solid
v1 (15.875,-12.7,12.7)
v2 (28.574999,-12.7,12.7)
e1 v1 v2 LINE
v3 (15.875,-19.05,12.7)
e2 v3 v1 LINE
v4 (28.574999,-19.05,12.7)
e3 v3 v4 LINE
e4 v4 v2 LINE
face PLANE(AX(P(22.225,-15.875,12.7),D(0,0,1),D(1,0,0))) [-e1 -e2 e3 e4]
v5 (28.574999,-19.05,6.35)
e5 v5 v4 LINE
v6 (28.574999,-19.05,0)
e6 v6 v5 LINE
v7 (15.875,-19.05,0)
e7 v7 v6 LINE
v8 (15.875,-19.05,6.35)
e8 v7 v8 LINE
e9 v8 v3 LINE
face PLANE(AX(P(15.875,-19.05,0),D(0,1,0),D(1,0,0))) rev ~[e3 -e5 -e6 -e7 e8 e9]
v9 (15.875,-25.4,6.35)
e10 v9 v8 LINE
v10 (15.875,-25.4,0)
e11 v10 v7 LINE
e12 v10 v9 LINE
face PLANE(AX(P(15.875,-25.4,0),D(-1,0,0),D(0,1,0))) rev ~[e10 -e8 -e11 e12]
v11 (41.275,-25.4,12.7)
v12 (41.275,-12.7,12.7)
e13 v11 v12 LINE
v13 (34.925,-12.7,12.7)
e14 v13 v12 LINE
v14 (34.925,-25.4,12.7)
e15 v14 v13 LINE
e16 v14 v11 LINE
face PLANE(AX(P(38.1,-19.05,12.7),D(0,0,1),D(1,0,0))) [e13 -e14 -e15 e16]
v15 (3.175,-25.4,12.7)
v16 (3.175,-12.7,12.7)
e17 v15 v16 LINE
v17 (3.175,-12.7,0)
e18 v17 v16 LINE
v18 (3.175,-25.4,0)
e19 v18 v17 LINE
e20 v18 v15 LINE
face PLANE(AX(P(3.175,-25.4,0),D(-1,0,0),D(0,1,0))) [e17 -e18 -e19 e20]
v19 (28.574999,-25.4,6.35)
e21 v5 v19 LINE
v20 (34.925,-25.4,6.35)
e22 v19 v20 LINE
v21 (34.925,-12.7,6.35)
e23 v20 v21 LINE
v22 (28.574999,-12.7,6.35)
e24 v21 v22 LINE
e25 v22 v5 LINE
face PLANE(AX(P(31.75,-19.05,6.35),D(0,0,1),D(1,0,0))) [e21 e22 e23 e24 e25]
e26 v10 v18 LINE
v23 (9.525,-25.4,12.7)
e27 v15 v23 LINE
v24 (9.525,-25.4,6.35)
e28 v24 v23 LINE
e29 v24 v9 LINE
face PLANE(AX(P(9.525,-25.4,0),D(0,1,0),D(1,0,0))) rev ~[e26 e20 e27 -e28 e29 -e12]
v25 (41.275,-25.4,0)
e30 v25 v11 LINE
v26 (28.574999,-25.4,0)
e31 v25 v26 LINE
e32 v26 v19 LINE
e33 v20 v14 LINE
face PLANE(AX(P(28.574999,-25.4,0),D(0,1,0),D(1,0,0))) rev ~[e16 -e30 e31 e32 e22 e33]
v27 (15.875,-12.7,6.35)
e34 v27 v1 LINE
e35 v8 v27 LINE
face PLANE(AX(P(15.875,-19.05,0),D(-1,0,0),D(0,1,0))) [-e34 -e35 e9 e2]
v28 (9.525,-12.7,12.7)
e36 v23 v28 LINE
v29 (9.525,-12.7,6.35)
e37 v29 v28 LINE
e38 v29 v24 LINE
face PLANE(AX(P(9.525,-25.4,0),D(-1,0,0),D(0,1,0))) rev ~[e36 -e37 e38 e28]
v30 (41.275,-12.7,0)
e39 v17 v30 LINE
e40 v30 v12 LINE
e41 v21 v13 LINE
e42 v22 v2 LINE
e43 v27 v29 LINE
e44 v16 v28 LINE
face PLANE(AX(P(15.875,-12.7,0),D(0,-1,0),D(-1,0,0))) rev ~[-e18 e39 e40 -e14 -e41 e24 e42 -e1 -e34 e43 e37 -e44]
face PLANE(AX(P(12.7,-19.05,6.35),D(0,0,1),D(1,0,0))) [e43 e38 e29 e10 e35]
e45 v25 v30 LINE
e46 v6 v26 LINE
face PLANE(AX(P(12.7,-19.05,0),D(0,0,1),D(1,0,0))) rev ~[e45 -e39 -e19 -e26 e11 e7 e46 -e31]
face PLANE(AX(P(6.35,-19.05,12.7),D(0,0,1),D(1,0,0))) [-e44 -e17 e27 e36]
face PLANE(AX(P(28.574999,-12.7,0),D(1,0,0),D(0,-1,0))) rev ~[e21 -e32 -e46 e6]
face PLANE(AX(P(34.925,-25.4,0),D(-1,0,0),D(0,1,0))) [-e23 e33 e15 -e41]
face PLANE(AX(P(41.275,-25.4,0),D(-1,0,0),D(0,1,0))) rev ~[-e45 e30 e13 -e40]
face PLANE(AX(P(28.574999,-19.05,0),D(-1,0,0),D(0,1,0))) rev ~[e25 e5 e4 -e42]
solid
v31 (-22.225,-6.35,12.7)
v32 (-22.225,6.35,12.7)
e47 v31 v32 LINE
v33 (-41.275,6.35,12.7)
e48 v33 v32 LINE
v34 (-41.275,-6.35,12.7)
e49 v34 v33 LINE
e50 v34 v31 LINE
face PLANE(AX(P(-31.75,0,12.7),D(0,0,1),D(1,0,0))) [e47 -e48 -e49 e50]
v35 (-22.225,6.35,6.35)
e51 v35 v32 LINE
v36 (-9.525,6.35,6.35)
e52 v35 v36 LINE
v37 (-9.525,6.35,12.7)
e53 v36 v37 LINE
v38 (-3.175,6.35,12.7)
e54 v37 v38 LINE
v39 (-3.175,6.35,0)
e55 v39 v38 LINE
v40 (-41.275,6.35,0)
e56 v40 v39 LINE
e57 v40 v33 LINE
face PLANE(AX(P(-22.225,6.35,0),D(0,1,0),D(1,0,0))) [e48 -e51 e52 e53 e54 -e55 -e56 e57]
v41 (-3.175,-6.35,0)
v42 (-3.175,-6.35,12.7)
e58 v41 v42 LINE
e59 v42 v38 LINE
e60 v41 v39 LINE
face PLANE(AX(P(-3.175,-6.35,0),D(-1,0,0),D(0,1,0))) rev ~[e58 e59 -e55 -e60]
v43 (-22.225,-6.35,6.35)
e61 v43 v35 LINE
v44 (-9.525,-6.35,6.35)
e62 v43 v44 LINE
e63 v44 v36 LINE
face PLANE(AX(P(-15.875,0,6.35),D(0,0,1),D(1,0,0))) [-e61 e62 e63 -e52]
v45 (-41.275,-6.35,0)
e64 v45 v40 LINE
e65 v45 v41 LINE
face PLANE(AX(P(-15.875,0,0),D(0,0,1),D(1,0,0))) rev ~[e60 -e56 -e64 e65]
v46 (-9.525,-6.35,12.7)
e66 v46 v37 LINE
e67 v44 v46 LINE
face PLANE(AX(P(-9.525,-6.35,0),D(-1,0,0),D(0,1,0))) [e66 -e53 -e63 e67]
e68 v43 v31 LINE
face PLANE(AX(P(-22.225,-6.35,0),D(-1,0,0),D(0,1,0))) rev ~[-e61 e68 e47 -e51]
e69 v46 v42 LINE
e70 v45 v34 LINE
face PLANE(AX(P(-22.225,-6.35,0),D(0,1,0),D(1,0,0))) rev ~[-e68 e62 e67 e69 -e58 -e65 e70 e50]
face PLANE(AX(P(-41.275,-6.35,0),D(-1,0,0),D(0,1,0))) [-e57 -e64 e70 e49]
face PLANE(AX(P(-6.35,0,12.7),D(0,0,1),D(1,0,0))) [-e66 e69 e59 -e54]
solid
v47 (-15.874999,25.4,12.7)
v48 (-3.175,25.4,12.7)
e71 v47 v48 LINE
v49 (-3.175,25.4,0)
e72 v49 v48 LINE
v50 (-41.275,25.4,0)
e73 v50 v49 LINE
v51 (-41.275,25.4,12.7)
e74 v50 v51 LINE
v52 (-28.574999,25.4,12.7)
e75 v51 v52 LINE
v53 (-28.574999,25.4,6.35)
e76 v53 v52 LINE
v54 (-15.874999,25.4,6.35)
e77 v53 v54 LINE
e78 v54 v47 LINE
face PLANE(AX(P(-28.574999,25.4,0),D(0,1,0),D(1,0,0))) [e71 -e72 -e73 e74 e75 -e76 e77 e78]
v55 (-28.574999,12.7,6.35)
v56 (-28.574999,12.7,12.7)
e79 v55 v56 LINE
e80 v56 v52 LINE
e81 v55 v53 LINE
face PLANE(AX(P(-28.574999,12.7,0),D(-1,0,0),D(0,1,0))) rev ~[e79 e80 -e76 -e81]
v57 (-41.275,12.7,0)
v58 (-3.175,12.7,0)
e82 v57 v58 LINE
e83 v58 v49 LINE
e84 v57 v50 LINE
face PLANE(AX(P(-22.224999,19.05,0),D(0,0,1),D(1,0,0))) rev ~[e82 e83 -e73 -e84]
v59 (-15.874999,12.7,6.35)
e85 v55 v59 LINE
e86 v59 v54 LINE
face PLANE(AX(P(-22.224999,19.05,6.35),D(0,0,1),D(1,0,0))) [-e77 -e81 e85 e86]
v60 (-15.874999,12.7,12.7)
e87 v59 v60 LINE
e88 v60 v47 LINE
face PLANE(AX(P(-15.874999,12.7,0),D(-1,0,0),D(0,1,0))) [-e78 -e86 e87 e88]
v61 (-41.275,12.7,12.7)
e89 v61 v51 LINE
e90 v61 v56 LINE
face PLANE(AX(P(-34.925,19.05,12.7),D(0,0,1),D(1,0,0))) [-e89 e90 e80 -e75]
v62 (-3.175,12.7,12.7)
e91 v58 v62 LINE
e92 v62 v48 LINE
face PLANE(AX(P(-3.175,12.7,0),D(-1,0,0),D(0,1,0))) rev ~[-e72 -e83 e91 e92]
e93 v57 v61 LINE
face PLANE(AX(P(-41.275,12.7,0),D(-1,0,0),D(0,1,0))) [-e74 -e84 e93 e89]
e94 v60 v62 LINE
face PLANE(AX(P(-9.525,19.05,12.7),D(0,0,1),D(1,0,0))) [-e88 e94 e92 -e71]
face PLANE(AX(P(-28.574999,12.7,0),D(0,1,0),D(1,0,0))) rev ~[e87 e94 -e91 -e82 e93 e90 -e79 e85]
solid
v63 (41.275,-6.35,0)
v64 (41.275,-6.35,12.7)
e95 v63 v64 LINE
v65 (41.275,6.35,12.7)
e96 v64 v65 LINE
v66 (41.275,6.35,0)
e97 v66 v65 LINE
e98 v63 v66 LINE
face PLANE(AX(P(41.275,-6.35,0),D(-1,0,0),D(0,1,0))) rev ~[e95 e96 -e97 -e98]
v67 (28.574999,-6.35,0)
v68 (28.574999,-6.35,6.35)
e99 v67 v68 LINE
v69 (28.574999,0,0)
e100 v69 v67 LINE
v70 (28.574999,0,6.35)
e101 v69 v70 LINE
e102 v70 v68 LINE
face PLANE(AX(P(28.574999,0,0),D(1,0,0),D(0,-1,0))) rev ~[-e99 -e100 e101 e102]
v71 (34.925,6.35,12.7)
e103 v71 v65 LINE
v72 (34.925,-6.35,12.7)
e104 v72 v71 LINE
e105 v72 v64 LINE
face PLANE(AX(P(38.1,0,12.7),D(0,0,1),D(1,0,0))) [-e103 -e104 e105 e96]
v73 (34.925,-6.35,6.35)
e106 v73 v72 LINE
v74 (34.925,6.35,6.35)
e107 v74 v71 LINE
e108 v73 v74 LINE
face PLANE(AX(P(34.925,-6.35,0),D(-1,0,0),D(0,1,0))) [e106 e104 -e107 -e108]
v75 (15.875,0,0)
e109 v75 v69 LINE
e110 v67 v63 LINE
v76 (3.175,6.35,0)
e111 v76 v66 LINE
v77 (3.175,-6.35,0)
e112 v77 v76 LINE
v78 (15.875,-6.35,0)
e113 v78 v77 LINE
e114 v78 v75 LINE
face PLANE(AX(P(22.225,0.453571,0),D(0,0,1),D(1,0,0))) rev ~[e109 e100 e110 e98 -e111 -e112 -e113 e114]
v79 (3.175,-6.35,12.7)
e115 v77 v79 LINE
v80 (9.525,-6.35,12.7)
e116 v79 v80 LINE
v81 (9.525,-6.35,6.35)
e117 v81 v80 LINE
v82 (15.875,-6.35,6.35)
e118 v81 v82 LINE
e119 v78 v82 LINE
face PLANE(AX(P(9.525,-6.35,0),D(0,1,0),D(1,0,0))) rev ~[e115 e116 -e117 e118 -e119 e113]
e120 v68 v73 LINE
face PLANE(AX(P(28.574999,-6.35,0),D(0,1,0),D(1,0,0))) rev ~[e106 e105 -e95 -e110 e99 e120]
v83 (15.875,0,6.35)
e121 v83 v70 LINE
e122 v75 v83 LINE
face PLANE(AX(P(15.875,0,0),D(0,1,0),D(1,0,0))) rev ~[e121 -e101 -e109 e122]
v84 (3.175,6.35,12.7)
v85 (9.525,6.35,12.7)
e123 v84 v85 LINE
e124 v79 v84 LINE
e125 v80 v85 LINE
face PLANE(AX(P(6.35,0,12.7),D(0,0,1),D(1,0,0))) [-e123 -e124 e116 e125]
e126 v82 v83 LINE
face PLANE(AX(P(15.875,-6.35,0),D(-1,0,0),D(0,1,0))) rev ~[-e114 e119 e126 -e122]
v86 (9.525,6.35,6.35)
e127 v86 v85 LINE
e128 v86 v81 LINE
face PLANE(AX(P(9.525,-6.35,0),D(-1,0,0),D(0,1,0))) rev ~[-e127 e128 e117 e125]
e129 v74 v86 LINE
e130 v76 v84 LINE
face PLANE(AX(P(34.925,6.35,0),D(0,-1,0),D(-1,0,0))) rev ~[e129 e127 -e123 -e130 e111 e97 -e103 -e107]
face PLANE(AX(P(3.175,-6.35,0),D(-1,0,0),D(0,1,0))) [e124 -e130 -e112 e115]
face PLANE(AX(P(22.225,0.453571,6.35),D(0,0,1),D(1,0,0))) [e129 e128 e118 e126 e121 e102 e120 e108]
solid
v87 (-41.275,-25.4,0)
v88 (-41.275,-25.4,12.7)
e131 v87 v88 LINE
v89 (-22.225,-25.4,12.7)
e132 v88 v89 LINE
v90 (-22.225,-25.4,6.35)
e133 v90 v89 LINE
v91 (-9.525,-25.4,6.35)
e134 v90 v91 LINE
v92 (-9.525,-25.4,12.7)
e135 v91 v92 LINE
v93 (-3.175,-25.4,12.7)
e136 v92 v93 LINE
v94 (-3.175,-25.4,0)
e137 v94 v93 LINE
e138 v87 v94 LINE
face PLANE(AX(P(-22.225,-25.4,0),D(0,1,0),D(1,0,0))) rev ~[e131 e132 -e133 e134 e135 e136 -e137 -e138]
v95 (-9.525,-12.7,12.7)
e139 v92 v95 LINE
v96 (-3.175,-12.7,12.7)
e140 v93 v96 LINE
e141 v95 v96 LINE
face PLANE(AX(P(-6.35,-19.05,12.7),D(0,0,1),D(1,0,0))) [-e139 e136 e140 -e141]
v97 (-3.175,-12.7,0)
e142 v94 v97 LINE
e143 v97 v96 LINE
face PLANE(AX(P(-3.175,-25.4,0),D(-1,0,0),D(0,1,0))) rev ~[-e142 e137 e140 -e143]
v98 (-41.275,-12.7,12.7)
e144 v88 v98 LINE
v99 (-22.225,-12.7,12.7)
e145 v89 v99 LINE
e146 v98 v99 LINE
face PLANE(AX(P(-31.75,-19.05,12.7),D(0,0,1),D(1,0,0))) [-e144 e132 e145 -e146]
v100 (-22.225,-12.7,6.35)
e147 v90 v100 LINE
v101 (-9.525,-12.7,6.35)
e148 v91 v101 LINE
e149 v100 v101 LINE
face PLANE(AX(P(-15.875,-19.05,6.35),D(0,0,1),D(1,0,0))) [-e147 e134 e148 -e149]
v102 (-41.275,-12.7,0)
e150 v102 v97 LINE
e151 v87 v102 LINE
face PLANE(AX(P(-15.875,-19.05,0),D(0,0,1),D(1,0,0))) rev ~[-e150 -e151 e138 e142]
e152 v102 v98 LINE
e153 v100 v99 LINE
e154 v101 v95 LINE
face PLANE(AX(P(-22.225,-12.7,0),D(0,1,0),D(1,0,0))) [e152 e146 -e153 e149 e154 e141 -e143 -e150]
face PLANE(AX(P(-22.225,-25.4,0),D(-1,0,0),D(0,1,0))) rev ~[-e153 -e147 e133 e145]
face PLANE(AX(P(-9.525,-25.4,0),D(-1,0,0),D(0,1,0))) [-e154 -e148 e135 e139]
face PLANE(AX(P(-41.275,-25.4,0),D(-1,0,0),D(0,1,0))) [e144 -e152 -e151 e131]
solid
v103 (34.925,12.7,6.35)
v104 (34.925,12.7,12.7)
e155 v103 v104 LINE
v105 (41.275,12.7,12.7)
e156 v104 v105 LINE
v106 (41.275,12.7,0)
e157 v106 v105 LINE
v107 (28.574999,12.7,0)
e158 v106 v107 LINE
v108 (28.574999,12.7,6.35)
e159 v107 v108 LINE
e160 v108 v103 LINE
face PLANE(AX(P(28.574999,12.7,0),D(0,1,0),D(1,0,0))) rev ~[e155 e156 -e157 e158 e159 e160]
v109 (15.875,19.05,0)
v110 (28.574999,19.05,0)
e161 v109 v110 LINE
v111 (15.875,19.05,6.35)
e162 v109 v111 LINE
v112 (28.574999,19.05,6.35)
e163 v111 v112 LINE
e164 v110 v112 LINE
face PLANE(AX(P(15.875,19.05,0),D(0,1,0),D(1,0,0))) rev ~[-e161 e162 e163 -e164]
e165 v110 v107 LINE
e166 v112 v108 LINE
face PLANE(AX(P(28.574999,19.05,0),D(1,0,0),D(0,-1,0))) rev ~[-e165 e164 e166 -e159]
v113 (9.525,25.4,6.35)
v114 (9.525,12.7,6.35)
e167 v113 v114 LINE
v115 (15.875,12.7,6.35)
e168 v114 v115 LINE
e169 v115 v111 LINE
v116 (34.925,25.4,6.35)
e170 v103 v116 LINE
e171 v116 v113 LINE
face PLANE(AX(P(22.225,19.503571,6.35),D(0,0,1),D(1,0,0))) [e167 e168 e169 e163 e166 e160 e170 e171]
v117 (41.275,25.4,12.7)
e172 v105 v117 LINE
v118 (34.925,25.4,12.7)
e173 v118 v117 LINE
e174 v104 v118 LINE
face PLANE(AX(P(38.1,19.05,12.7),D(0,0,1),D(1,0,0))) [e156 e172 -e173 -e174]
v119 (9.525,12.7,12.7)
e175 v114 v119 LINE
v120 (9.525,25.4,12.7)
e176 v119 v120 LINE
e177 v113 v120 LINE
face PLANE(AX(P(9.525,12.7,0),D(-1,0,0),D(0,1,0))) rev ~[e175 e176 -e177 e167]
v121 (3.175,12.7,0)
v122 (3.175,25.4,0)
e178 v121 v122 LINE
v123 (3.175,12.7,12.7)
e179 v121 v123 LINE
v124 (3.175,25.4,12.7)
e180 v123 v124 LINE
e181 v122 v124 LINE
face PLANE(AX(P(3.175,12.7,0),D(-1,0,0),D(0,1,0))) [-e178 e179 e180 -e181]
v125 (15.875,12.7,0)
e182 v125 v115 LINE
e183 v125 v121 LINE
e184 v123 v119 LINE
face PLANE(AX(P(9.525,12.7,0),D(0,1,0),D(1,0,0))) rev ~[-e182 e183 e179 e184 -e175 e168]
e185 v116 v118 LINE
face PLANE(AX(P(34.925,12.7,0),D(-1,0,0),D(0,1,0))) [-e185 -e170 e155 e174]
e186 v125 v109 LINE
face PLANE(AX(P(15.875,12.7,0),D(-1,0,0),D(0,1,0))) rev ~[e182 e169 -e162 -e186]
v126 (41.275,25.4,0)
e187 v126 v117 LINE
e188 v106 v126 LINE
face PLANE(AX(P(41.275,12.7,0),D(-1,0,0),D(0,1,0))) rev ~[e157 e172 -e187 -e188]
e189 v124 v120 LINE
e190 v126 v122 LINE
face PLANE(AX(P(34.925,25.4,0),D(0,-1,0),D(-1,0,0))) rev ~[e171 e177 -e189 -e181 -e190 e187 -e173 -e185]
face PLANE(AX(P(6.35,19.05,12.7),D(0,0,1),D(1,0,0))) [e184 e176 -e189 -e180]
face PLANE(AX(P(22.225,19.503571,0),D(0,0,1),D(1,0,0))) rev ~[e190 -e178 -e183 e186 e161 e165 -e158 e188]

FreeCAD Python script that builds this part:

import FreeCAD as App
import Part
import Sketcher
Q = App.Units.Quantity

doc = App.newDocument("Part")
body = doc.addObject("PartDesign::Body", "Body")

# Sketch on XY plane
sketch1 = body.newObject("Sketcher::SketchObject", "Sketch")
sketch1.AttachmentSupport = (doc.getObject("XY_Plane"), [""])
sketch1.MapMode = "FlatFace"
sketch1.addGeometry(Part.LineSegment(App.Vector(-41, 25, 0), App.Vector(-41, 13, 0)), False)
sketch1.addGeometry(Part.LineSegment(App.Vector(-41, 13, 0), App.Vector(-29, 13, 0)), False)
sketch1.addGeometry(Part.LineSegment(App.Vector(-29, 13, 0), App.Vector(-29, 25, 0)), False)
sketch1.addGeometry(Part.LineSegment(App.Vector(-29, 25, 0), App.Vector(-41, 25, 0)), False)
sketch1.addConstraint(Sketcher.Constraint("Coincident", 0, 2, 1, 1))
sketch1.addConstraint(Sketcher.Constraint("Coincident", 1, 2, 2, 1))
sketch1.addConstraint(Sketcher.Constraint("Coincident", 2, 2, 3, 1))
sketch1.addConstraint(Sketcher.Constraint("Coincident", 3, 2, 0, 1))
sketch1.addConstraint(Sketcher.Constraint("Vertical", 0))
sketch1.addConstraint(Sketcher.Constraint("Horizontal", 1))
sketch1.addConstraint(Sketcher.Constraint("Vertical", 2))
sketch1.addConstraint(Sketcher.Constraint("Horizontal", 3))
sketch1.addConstraint(Sketcher.Constraint("Equal", 3, 0))
sketch1.addConstraint(Sketcher.Constraint("DistanceX", 1, 1, 1, 2, Q("0.5 in")))
sketch1.addConstraint(Sketcher.Constraint("DistanceY", -1, 1, 2, 2, Q("1 in")))
sketch1.addConstraint(Sketcher.Constraint("DistanceX", 0, 2, -1, 1, Q("1.625 in")))
pad1 = body.newObject("PartDesign::Pad", "Pad")
pad1.Profile = sketch1
pad1.Length = Q("0.5 in")
body2 = doc.addObject("PartDesign::Body", "Body001")

# Sketch on XY plane
sketch2 = body2.newObject("Sketcher::SketchObject", "Sketch001")
sketch2.AttachmentSupport = (doc.getObject("XY_Plane001"), [""])
sketch2.MapMode = "FlatFace"
sketch2.addGeometry(Part.LineSegment(App.Vector(-16, 25, 0), App.Vector(-16, 13, 0)), False)
sketch2.addGeometry(Part.LineSegment(App.Vector(-16, 13, 0), App.Vector(-3, 13, 0)), False)
sketch2.addGeometry(Part.LineSegment(App.Vector(-3, 13, 0), App.Vector(-3, 25, 0)), False)
sketch2.addGeometry(Part.LineSegment(App.Vector(-3, 25, 0), App.Vector(-16, 25, 0)), False)
sketch2.addConstraint(Sketcher.Constraint("Coincident", 0, 2, 1, 1))
sketch2.addConstraint(Sketcher.Constraint("Coincident", 1, 2, 2, 1))
sketch2.addConstraint(Sketcher.Constraint("Coincident", 2, 2, 3, 1))
sketch2.addConstraint(Sketcher.Constraint("Coincident", 3, 2, 0, 1))
sketch2.addConstraint(Sketcher.Constraint("Vertical", 0))
sketch2.addConstraint(Sketcher.Constraint("Horizontal", 1))
sketch2.addConstraint(Sketcher.Constraint("Vertical", 2))
sketch2.addConstraint(Sketcher.Constraint("Horizontal", 3))
sketch2.addConstraint(Sketcher.Constraint("Equal", 3, 0))
sketch2.addConstraint(Sketcher.Constraint("DistanceX", 1, 1, 1, 2, Q("0.5 in")))
sketch2.addConstraint(Sketcher.Constraint("DistanceY", -1, 1, 2, 2, Q("1 in")))
sketch2.addConstraint(Sketcher.Constraint("DistanceX", 0, 2, -1, 1, Q("0.625 in")))
pad2 = body2.newObject("PartDesign::Pad", "Pad001")
pad2.Profile = sketch2
pad2.Length = Q("0.5 in")
body3 = doc.addObject("PartDesign::Body", "Body002")

# Sketch on XY plane
sketch3 = body3.newObject("Sketcher::SketchObject", "Sketch002")
sketch3.AttachmentSupport = (doc.getObject("XY_Plane002"), [""])
sketch3.MapMode = "FlatFace"
sketch3.addGeometry(Part.LineSegment(App.Vector(-41, 6, 0), App.Vector(-41, -6, 0)), False)
sketch3.addGeometry(Part.LineSegment(App.Vector(-41, -6, 0), App.Vector(-22, -6, 0)), False)
sketch3.addGeometry(Part.LineSegment(App.Vector(-22, -6, 0), App.Vector(-22, 6, 0)), False)
sketch3.addGeometry(Part.LineSegment(App.Vector(-22, 6, 0), App.Vector(-41, 6, 0)), False)
sketch3.addConstraint(Sketcher.Constraint("Coincident", 0, 2, 1, 1))
sketch3.addConstraint(Sketcher.Constraint("Coincident", 1, 2, 2, 1))
sketch3.addConstraint(Sketcher.Constraint("Coincident", 2, 2, 3, 1))
sketch3.addConstraint(Sketcher.Constraint("Coincident", 3, 2, 0, 1))
sketch3.addConstraint(Sketcher.Constraint("Vertical", 0))
sketch3.addConstraint(Sketcher.Constraint("Horizontal", 1))
sketch3.addConstraint(Sketcher.Constraint("Vertical", 2))
sketch3.addConstraint(Sketcher.Constraint("Horizontal", 3))
sketch3.addConstraint(Sketcher.Constraint("DistanceY", 0, 2, 0, 1, Q("0.5 in")))
sketch3.addConstraint(Sketcher.Constraint("DistanceX", 1, 1, 1, 2, Q("0.75 in")))
sketch3.addConstraint(Sketcher.Constraint("DistanceY", 0, 2, -1, 1, Q("0.25 in")))
sketch3.addConstraint(Sketcher.Constraint("DistanceX", 0, 2, -1, 1, Q("1.625 in")))
pad3 = body3.newObject("PartDesign::Pad", "Pad002")
pad3.Profile = sketch3
pad3.Length = Q("0.5 in")
body4 = doc.addObject("PartDesign::Body", "Body003")

# Sketch on XY plane
sketch4 = body4.newObject("Sketcher::SketchObject", "Sketch003")
sketch4.AttachmentSupport = (doc.getObject("XY_Plane003"), [""])
sketch4.MapMode = "FlatFace"
sketch4.addGeometry(Part.LineSegment(App.Vector(-10, 6, 0), App.Vector(-10, -6, 0)), False)
sketch4.addGeometry(Part.LineSegment(App.Vector(-10, -6, 0), App.Vector(-3, -6, 0)), False)
sketch4.addGeometry(Part.LineSegment(App.Vector(-3, -6, 0), App.Vector(-3, 6, 0)), False)
sketch4.addGeometry(Part.LineSegment(App.Vector(-3, 6, 0), App.Vector(-10, 6, 0)), False)
sketch4.addConstraint(Sketcher.Constraint("Coincident", 0, 2, 1, 1))
sketch4.addConstraint(Sketcher.Constraint("Coincident", 1, 2, 2, 1))
sketch4.addConstraint(Sketcher.Constraint("Coincident", 2, 2, 3, 1))
sketch4.addConstraint(Sketcher.Constraint("Coincident", 3, 2, 0, 1))
sketch4.addConstraint(Sketcher.Constraint("Vertical", 0))
sketch4.addConstraint(Sketcher.Constraint("Horizontal", 1))
sketch4.addConstraint(Sketcher.Constraint("Vertical", 2))
sketch4.addConstraint(Sketcher.Constraint("Horizontal", 3))
sketch4.addConstraint(Sketcher.Constraint("DistanceY", 0, 2, 0, 1, Q("0.5 in")))
sketch4.addConstraint(Sketcher.Constraint("DistanceX", 1, 1, 1, 2, Q("0.25 in")))
sketch4.addConstraint(Sketcher.Constraint("DistanceY", 0, 2, -1, 1, Q("0.25 in")))
sketch4.addConstraint(Sketcher.Constraint("DistanceX", 0, 2, -1, 1, Q("0.375 in")))
pad4 = body4.newObject("PartDesign::Pad", "Pad003")
pad4.Profile = sketch4
pad4.Length = Q("0.5 in")
body5 = doc.addObject("PartDesign::Body", "Body004")

# Sketch on XY plane
sketch5 = body5.newObject("Sketcher::SketchObject", "Sketch004")
sketch5.AttachmentSupport = (doc.getObject("XY_Plane004"), [""])
sketch5.MapMode = "FlatFace"
sketch5.addGeometry(Part.LineSegment(App.Vector(-10, -13, 0), App.Vector(-10, -25, 0)), False)
sketch5.addGeometry(Part.LineSegment(App.Vector(-10, -25, 0), App.Vector(-3, -25, 0)), False)
sketch5.addGeometry(Part.LineSegment(App.Vector(-3, -25, 0), App.Vector(-3, -13, 0)), False)
sketch5.addGeometry(Part.LineSegment(App.Vector(-3, -13, 0), App.Vector(-10, -13, 0)), False)
sketch5.addConstraint(Sketcher.Constraint("Coincident", 0, 2, 1, 1))
sketch5.addConstraint(Sketcher.Constraint("Coincident", 1, 2, 2, 1))
sketch5.addConstraint(Sketcher.Constraint("Coincident", 2, 2, 3, 1))
sketch5.addConstraint(Sketcher.Constraint("Coincident", 3, 2, 0, 1))
sketch5.addConstraint(Sketcher.Constraint("Vertical", 0))
sketch5.addConstraint(Sketcher.Constraint("Horizontal", 1))
sketch5.addConstraint(Sketcher.Constraint("Vertical", 2))
sketch5.addConstraint(Sketcher.Constraint("Horizontal", 3))
sketch5.addConstraint(Sketcher.Constraint("DistanceY", 0, 2, 0, 1, Q("0.5 in")))
sketch5.addConstraint(Sketcher.Constraint("DistanceY", 0, 2, -1, 1, Q("1 in")))
sketch5.addConstraint(Sketcher.Constraint("DistanceX", 1, 1, 1, 2, Q("0.25 in")))
sketch5.addConstraint(Sketcher.Constraint("DistanceX", 0, 2, -1, 1, Q("0.375 in")))
pad5 = body5.newObject("PartDesign::Pad", "Pad004")
pad5.Profile = sketch5
pad5.Length = Q("0.5 in")
body6 = doc.addObject("PartDesign::Body", "Body005")

# Sketch on XY plane
sketch6 = body6.newObject("Sketcher::SketchObject", "Sketch005")
sketch6.AttachmentSupport = (doc.getObject("XY_Plane005"), [""])
sketch6.MapMode = "FlatFace"
sketch6.addGeometry(Part.LineSegment(App.Vector(-41, -13, 0), App.Vector(-41, -25, 0)), False)
sketch6.addGeometry(Part.LineSegment(App.Vector(-41, -25, 0), App.Vector(-22, -25, 0)), False)
sketch6.addGeometry(Part.LineSegment(App.Vector(-22, -25, 0), App.Vector(-22, -13, 0)), False)
sketch6.addGeometry(Part.LineSegment(App.Vector(-22, -13, 0), App.Vector(-41, -13, 0)), False)
sketch6.addConstraint(Sketcher.Constraint("Coincident", 0, 2, 1, 1))
sketch6.addConstraint(Sketcher.Constraint("Coincident", 1, 2, 2, 1))
sketch6.addConstraint(Sketcher.Constraint("Coincident", 2, 2, 3, 1))
sketch6.addConstraint(Sketcher.Constraint("Coincident", 3, 2, 0, 1))
sketch6.addConstraint(Sketcher.Constraint("Vertical", 0))
sketch6.addConstraint(Sketcher.Constraint("Horizontal", 1))
sketch6.addConstraint(Sketcher.Constraint("Vertical", 2))
sketch6.addConstraint(Sketcher.Constraint("Horizontal", 3))
sketch6.addConstraint(Sketcher.Constraint("DistanceY", 0, 2, 0, 1, Q("0.5 in")))
sketch6.addConstraint(Sketcher.Constraint("DistanceY", 0, 2, -1, 1, Q("1 in")))
sketch6.addConstraint(Sketcher.Constraint("DistanceX", 1, 1, 1, 2, Q("0.75 in")))
sketch6.addConstraint(Sketcher.Constraint("DistanceX", 0, 2, -1, 1, Q("1.625 in")))
pad6 = body6.newObject("PartDesign::Pad", "Pad005")
pad6.Profile = sketch6
pad6.Length = Q("0.5 in")
body7 = doc.addObject("PartDesign::Body", "Body006")

# Sketch on XY plane
sketch7 = body7.newObject("Sketcher::SketchObject", "Sketch006")
sketch7.AttachmentSupport = (doc.getObject("XY_Plane006"), [""])
sketch7.MapMode = "FlatFace"
sketch7.addGeometry(Part.LineSegment(App.Vector(3, -13, 0), App.Vector(3, -25, 0)), False)
sketch7.addGeometry(Part.LineSegment(App.Vector(3, -25, 0), App.Vector(10, -25, 0)), False)
sketch7.addGeometry(Part.LineSegment(App.Vector(10, -25, 0), App.Vector(10, -13, 0)), False)
sketch7.addGeometry(Part.LineSegment(App.Vector(10, -13, 0), App.Vector(3, -13, 0)), False)
sketch7.addConstraint(Sketcher.Constraint("Coincident", 0, 2, 1, 1))
sketch7.addConstraint(Sketcher.Constraint("Coincident", 1, 2, 2, 1))
sketch7.addConstraint(Sketcher.Constraint("Coincident", 2, 2, 3, 1))
sketch7.addConstraint(Sketcher.Constraint("Coincident", 3, 2, 0, 1))
sketch7.addConstraint(Sketcher.Constraint("Vertical", 0))
sketch7.addConstraint(Sketcher.Constraint("Horizontal", 1))
sketch7.addConstraint(Sketcher.Constraint("Vertical", 2))
sketch7.addConstraint(Sketcher.Constraint("Horizontal", 3))
sketch7.addConstraint(Sketcher.Constraint("DistanceY", 0, 2, 0, 1, Q("0.5 in")))
sketch7.addConstraint(Sketcher.Constraint("DistanceY", 0, 2, -1, 1, Q("1 in")))
sketch7.addConstraint(Sketcher.Constraint("DistanceX", 1, 1, 1, 2, Q("0.25 in")))
sketch7.addConstraint(Sketcher.Constraint("DistanceX", -1, 1, 0, 2, Q("0.125 in")))
pad7 = body7.newObject("PartDesign::Pad", "Pad006")
pad7.Profile = sketch7
pad7.Length = Q("0.5 in")
body8 = doc.addObject("PartDesign::Body", "Body007")

# Sketch on XY plane
sketch8 = body8.newObject("Sketcher::SketchObject", "Sketch007")
sketch8.AttachmentSupport = (doc.getObject("XY_Plane007"), [""])
sketch8.MapMode = "FlatFace"
sketch8.addGeometry(Part.LineSegment(App.Vector(16, -13, 0), App.Vector(16, -19, 0)), False)
sketch8.addGeometry(Part.LineSegment(App.Vector(16, -19, 0), App.Vector(29, -19, 0)), False)
sketch8.addGeometry(Part.LineSegment(App.Vector(29, -19, 0), App.Vector(29, -13, 0)), False)
sketch8.addGeometry(Part.LineSegment(App.Vector(29, -13, 0), App.Vector(16, -13, 0)), False)
sketch8.addConstraint(Sketcher.Constraint("Coincident", 0, 2, 1, 1))
sketch8.addConstraint(Sketcher.Constraint("Coincident", 1, 2, 2, 1))
sketch8.addConstraint(Sketcher.Constraint("Coincident", 2, 2, 3, 1))
sketch8.addConstraint(Sketcher.Constraint("Coincident", 3, 2, 0, 1))
sketch8.addConstraint(Sketcher.Constraint("Vertical", 0))
sketch8.addConstraint(Sketcher.Constraint("Horizontal", 1))
sketch8.addConstraint(Sketcher.Constraint("Vertical", 2))
sketch8.addConstraint(Sketcher.Constraint("Horizontal", 3))
sketch8.addConstraint(Sketcher.Constraint("DistanceX", 1, 1, 1, 2, Q("0.5 in")))
sketch8.addConstraint(Sketcher.Constraint("DistanceY", 0, 2, 0, 1, Q("0.25 in")))
sketch8.addConstraint(Sketcher.Constraint("DistanceY", 2, 2, -1, 1, Q("0.5 in")))
sketch8.addConstraint(Sketcher.Constraint("DistanceX", -1, 1, 0, 2, Q("0.625 in")))
pad8 = body8.newObject("PartDesign::Pad", "Pad007")
pad8.Profile = sketch8
pad8.Length = Q("0.5 in")
body9 = doc.addObject("PartDesign::Body", "Body008")

# Sketch on XY plane
sketch9 = body9.newObject("Sketcher::SketchObject", "Sketch008")
sketch9.AttachmentSupport = (doc.getObject("XY_Plane008"), [""])
sketch9.MapMode = "FlatFace"
sketch9.addGeometry(Part.LineSegment(App.Vector(35, -13, 0), App.Vector(35, -25, 0)), False)
sketch9.addGeometry(Part.LineSegment(App.Vector(35, -25, 0), App.Vector(41, -25, 0)), False)
sketch9.addGeometry(Part.LineSegment(App.Vector(41, -25, 0), App.Vector(41, -13, 0)), False)
sketch9.addGeometry(Part.LineSegment(App.Vector(41, -13, 0), App.Vector(35, -13, 0)), False)
sketch9.addConstraint(Sketcher.Constraint("Coincident", 0, 2, 1, 1))
sketch9.addConstraint(Sketcher.Constraint("Coincident", 1, 2, 2, 1))
sketch9.addConstraint(Sketcher.Constraint("Coincident", 2, 2, 3, 1))
sketch9.addConstraint(Sketcher.Constraint("Coincident", 3, 2, 0, 1))
sketch9.addConstraint(Sketcher.Constraint("Vertical", 0))
sketch9.addConstraint(Sketcher.Constraint("Horizontal", 1))
sketch9.addConstraint(Sketcher.Constraint("Vertical", 2))
sketch9.addConstraint(Sketcher.Constraint("Horizontal", 3))
sketch9.addConstraint(Sketcher.Constraint("DistanceY", 0, 2, 0, 1, Q("0.5 in")))
sketch9.addConstraint(Sketcher.Constraint("DistanceY", 0, 2, -1, 1, Q("1 in")))
sketch9.addConstraint(Sketcher.Constraint("DistanceX", 1, 1, 1, 2, Q("0.25 in")))
sketch9.addConstraint(Sketcher.Constraint("DistanceX", -1, 1, 0, 2, Q("1.375 in")))
pad9 = body9.newObject("PartDesign::Pad", "Pad008")
pad9.Profile = sketch9
pad9.Length = Q("0.5 in")
body10 = doc.addObject("PartDesign::Body", "Body009")

# Sketch on XY plane
sketch10 = body10.newObject("Sketcher::SketchObject", "Sketch009")
sketch10.AttachmentSupport = (doc.getObject("XY_Plane009"), [""])
sketch10.MapMode = "FlatFace"
sketch10.addGeometry(Part.LineSegment(App.Vector(35, 6, 0), App.Vector(35, -6, 0)), False)
sketch10.addGeometry(Part.LineSegment(App.Vector(35, -6, 0), App.Vector(41, -6, 0)), False)
sketch10.addGeometry(Part.LineSegment(App.Vector(41, -6, 0), App.Vector(41, 6, 0)), False)
sketch10.addGeometry(Part.LineSegment(App.Vector(41, 6, 0), App.Vector(35, 6, 0)), False)
sketch10.addConstraint(Sketcher.Constraint("Coincident", 0, 2, 1, 1))
sketch10.addConstraint(Sketcher.Constraint("Coincident", 1, 2, 2, 1))
sketch10.addConstraint(Sketcher.Constraint("Coincident", 2, 2, 3, 1))
sketch10.addConstraint(Sketcher.Constraint("Coincident", 3, 2, 0, 1))
sketch10.addConstraint(Sketcher.Constraint("Vertical", 0))
sketch10.addConstraint(Sketcher.Constraint("Horizontal", 1))
sketch10.addConstraint(Sketcher.Constraint("Vertical", 2))
sketch10.addConstraint(Sketcher.Constraint("Horizontal", 3))
sketch10.addConstraint(Sketcher.Constraint("DistanceY", 0, 2, 0, 1, Q("0.5 in")))
sketch10.addConstraint(Sketcher.Constraint("DistanceX", 1, 1, 1, 2, Q("0.25 in")))
sketch10.addConstraint(Sketcher.Constraint("DistanceY", 0, 2, -1, 1, Q("0.25 in")))
sketch10.addConstraint(Sketcher.Constraint("DistanceX", -1, 1, 0, 2, Q("1.375 in")))
pad10 = body10.newObject("PartDesign::Pad", "Pad009")
pad10.Profile = sketch10
pad10.Length = Q("0.5 in")
body11 = doc.addObject("PartDesign::Body", "Body010")

# Sketch on XY plane
sketch11 = body11.newObject("Sketcher::SketchObject", "Sketch010")
sketch11.AttachmentSupport = (doc.getObject("XY_Plane010"), [""])
sketch11.MapMode = "FlatFace"
sketch11.addGeometry(Part.LineSegment(App.Vector(3, 6, 0), App.Vector(3, -6, 0)), False)
sketch11.addGeometry(Part.LineSegment(App.Vector(3, -6, 0), App.Vector(10, -6, 0)), False)
sketch11.addGeometry(Part.LineSegment(App.Vector(10, -6, 0), App.Vector(10, 6, 0)), False)
sketch11.addGeometry(Part.LineSegment(App.Vector(10, 6, 0), App.Vector(3, 6, 0)), False)
sketch11.addConstraint(Sketcher.Constraint("Coincident", 0, 2, 1, 1))
sketch11.addConstraint(Sketcher.Constraint("Coincident", 1, 2, 2, 1))
sketch11.addConstraint(Sketcher.Constraint("Coincident", 2, 2, 3, 1))
sketch11.addConstraint(Sketcher.Constraint("Coincident", 3, 2, 0, 1))
sketch11.addConstraint(Sketcher.Constraint("Vertical", 0))
sketch11.addConstraint(Sketcher.Constraint("Horizontal", 1))
sketch11.addConstraint(Sketcher.Constraint("Vertical", 2))
sketch11.addConstraint(Sketcher.Constraint("Horizontal", 3))
sketch11.addConstraint(Sketcher.Constraint("DistanceY", 0, 2, 0, 1, Q("0.5 in")))
sketch11.addConstraint(Sketcher.Constraint("DistanceX", 1, 1, 1, 2, Q("0.25 in")))
sketch11.addConstraint(Sketcher.Constraint("DistanceY", 0, 2, -1, 1, Q("0.25 in")))
sketch11.addConstraint(Sketcher.Constraint("DistanceX", -1, 1, 0, 2, Q("0.125 in")))
pad11 = body11.newObject("PartDesign::Pad", "Pad010")
pad11.Profile = sketch11
pad11.Length = Q("0.5 in")
body12 = doc.addObject("PartDesign::Body", "Body011")

# Sketch on XY plane
sketch12 = body12.newObject("Sketcher::SketchObject", "Sketch011")
sketch12.AttachmentSupport = (doc.getObject("XY_Plane011"), [""])
sketch12.MapMode = "FlatFace"
sketch12.addGeometry(Part.LineSegment(App.Vector(3, 25, 0), App.Vector(3, 13, 0)), False)
sketch12.addGeometry(Part.LineSegment(App.Vector(3, 13, 0), App.Vector(10, 13, 0)), False)
sketch12.addGeometry(Part.LineSegment(App.Vector(10, 13, 0), App.Vector(10, 25, 0)), False)
sketch12.addGeometry(Part.LineSegment(App.Vector(10, 25, 0), App.Vector(3, 25, 0)), False)
sketch12.addConstraint(Sketcher.Constraint("Coincident", 0, 2, 1, 1))
sketch12.addConstraint(Sketcher.Constraint("Coincident", 1, 2, 2, 1))
sketch12.addConstraint(Sketcher.Constraint("Coincident", 2, 2, 3, 1))
sketch12.addConstraint(Sketcher.Constraint("Coincident", 3, 2, 0, 1))
sketch12.addConstraint(Sketcher.Constraint("Vertical", 0))
sketch12.addConstraint(Sketcher.Constraint("Horizontal", 1))
sketch12.addConstraint(Sketcher.Constraint("Vertical", 2))
sketch12.addConstraint(Sketcher.Constraint("Horizontal", 3))
sketch12.addConstraint(Sketcher.Constraint("DistanceY", 0, 2, 0, 1, Q("0.5 in")))
sketch12.addConstraint(Sketcher.Constraint("DistanceY", -1, 1, 2, 2, Q("1 in")))
sketch12.addConstraint(Sketcher.Constraint("DistanceX", 1, 1, 1, 2, Q("0.25 in")))
sketch12.addConstraint(Sketcher.Constraint("DistanceX", -1, 1, 0, 2, Q("0.125 in")))
pad12 = body12.newObject("PartDesign::Pad", "Pad011")
pad12.Profile = sketch12
pad12.Length = Q("0.5 in")
body13 = doc.addObject("PartDesign::Body", "Body012")

# Sketch on XY plane
sketch13 = body13.newObject("Sketcher::SketchObject", "Sketch012")
sketch13.AttachmentSupport = (doc.getObject("XY_Plane012"), [""])
sketch13.MapMode = "FlatFace"
sketch13.addGeometry(Part.LineSegment(App.Vector(35, 25, 0), App.Vector(35, 13, 0)), False)
sketch13.addGeometry(Part.LineSegment(App.Vector(35, 13, 0), App.Vector(41, 13, 0)), False)
sketch13.addGeometry(Part.LineSegment(App.Vector(41, 13, 0), App.Vector(41, 25, 0)), False)
sketch13.addGeometry(Part.LineSegment(App.Vector(41, 25, 0), App.Vector(35, 25, 0)), False)
sketch13.addConstraint(Sketcher.Constraint("Coincident", 0, 2, 1, 1))
sketch13.addConstraint(Sketcher.Constraint("Coincident", 1, 2, 2, 1))
sketch13.addConstraint(Sketcher.Constraint("Coincident", 2, 2, 3, 1))
sketch13.addConstraint(Sketcher.Constraint("Coincident", 3, 2, 0, 1))
sketch13.addConstraint(Sketcher.Constraint("Vertical", 0))
sketch13.addConstraint(Sketcher.Constraint("Horizontal", 1))
sketch13.addConstraint(Sketcher.Constraint("Vertical", 2))
sketch13.addConstraint(Sketcher.Constraint("Horizontal", 3))
sketch13.addConstraint(Sketcher.Constraint("DistanceY", 0, 2, 0, 1, Q("0.5 in")))
sketch13.addConstraint(Sketcher.Constraint("DistanceY", -1, 1, 2, 2, Q("1 in")))
sketch13.addConstraint(Sketcher.Constraint("DistanceX", 1, 1, 1, 2, Q("0.25 in")))
sketch13.addConstraint(Sketcher.Constraint("DistanceX", -1, 1, 0, 2, Q("1.375 in")))
pad13 = body13.newObject("PartDesign::Pad", "Pad012")
pad13.Profile = sketch13
pad13.Length = Q("0.5 in")
body.AllowCompound = True
doc.recompute()

boolean = body.newObject("PartDesign::Boolean", "Boolean")
boolean.Type = "Fuse"
boolean.addObjects([body2])

# Sketch on XY plane
sketch14 = body.newObject("Sketcher::SketchObject", "Sketch013")
sketch14.AttachmentSupport = (doc.getObject("XY_Plane"), [""])
sketch14.MapMode = "FlatFace"
sketch14.addGeometry(Part.LineSegment(App.Vector(-29, 25, 0), App.Vector(-29, 13, 0)), False)
sketch14.addGeometry(Part.LineSegment(App.Vector(-29, 13, 0), App.Vector(-16, 13, 0)), False)
sketch14.addGeometry(Part.LineSegment(App.Vector(-16, 13, 0), App.Vector(-16, 25, 0)), False)
sketch14.addGeometry(Part.LineSegment(App.Vector(-16, 25, 0), App.Vector(-29, 25, 0)), False)
sketch14.addConstraint(Sketcher.Constraint("Coincident", 0, 2, 1, 1))
sketch14.addConstraint(Sketcher.Constraint("Coincident", 1, 2, 2, 1))
sketch14.addConstraint(Sketcher.Constraint("Coincident", 2, 2, 3, 1))
sketch14.addConstraint(Sketcher.Constraint("Coincident", 3, 2, 0, 1))
sketch14.addConstraint(Sketcher.Constraint("Vertical", 0))
sketch14.addConstraint(Sketcher.Constraint("Horizontal", 1))
sketch14.addConstraint(Sketcher.Constraint("Vertical", 2))
sketch14.addConstraint(Sketcher.Constraint("Horizontal", 3))
sketch14.addConstraint(Sketcher.Constraint("Equal", 3, 0))
sketch14.addConstraint(Sketcher.Constraint("DistanceX", 1, 1, 1, 2, Q("0.5 in")))
sketch14.addConstraint(Sketcher.Constraint("DistanceY", -1, 1, 2, 2, Q("1 in")))
sketch14.addConstraint(Sketcher.Constraint("DistanceX", 0, 2, -1, 1, Q("1.125 in")))
pad14 = body.newObject("PartDesign::Pad", "Pad013")
pad14.Profile = sketch14
pad14.Length = Q("0.25 in")
body3.AllowCompound = True
doc.recompute()

boolean2 = body3.newObject("PartDesign::Boolean", "Boolean001")
boolean2.Type = "Fuse"
boolean2.addObjects([body4])

# Sketch on XY plane
sketch15 = body3.newObject("Sketcher::SketchObject", "Sketch014")
sketch15.AttachmentSupport = (doc.getObject("XY_Plane002"), [""])
sketch15.MapMode = "FlatFace"
sketch15.addGeometry(Part.LineSegment(App.Vector(-22, 6, 0), App.Vector(-22, -6, 0)), False)
sketch15.addGeometry(Part.LineSegment(App.Vector(-22, -6, 0), App.Vector(-10, -6, 0)), False)
sketch15.addGeometry(Part.LineSegment(App.Vector(-10, -6, 0), App.Vector(-10, 6, 0)), False)
sketch15.addGeometry(Part.LineSegment(App.Vector(-10, 6, 0), App.Vector(-22, 6, 0)), False)
sketch15.addConstraint(Sketcher.Constraint("Coincident", 0, 2, 1, 1))
sketch15.addConstraint(Sketcher.Constraint("Coincident", 1, 2, 2, 1))
sketch15.addConstraint(Sketcher.Constraint("Coincident", 2, 2, 3, 1))
sketch15.addConstraint(Sketcher.Constraint("Coincident", 3, 2, 0, 1))
sketch15.addConstraint(Sketcher.Constraint("Vertical", 0))
sketch15.addConstraint(Sketcher.Constraint("Horizontal", 1))
sketch15.addConstraint(Sketcher.Constraint("Vertical", 2))
sketch15.addConstraint(Sketcher.Constraint("Horizontal", 3))
sketch15.addConstraint(Sketcher.Constraint("Equal", 3, 0))
sketch15.addConstraint(Sketcher.Constraint("DistanceX", 1, 1, 1, 2, Q("0.5 in")))
sketch15.addConstraint(Sketcher.Constraint("DistanceY", 0, 2, -1, 1, Q("0.25 in")))
sketch15.addConstraint(Sketcher.Constraint("DistanceX", 0, 2, -1, 1, Q("0.875 in")))
pad15 = body3.newObject("PartDesign::Pad", "Pad014")
pad15.Profile = sketch15
pad15.Length = Q("0.25 in")
body10.AllowCompound = True
doc.recompute()

boolean3 = body10.newObject("PartDesign::Boolean", "Boolean002")
boolean3.Type = "Fuse"
boolean3.addObjects([body11])

# Sketch on XY plane
sketch16 = body10.newObject("Sketcher::SketchObject", "Sketch015")
sketch16.AttachmentSupport = (doc.getObject("XY_Plane009"), [""])
sketch16.MapMode = "FlatFace"
sketch16.addGeometry(Part.LineSegment(App.Vector(29, -6, 0), App.Vector(35, -6, 0)), False)
sketch16.addGeometry(Part.LineSegment(App.Vector(35, -6, 0), App.Vector(35, 6, 0)), False)
sketch16.addGeometry(Part.LineSegment(App.Vector(35, 6, 0), App.Vector(10, 6, 0)), False)
sketch16.addGeometry(Part.LineSegment(App.Vector(10, 6, 0), App.Vector(10, -6, 0)), False)
sketch16.addGeometry(Part.LineSegment(App.Vector(10, -6, 0), App.Vector(16, -6, 0)), False)
sketch16.addGeometry(Part.LineSegment(App.Vector(16, -6, 0), App.Vector(16, 0, 0)), False)
sketch16.addGeometry(Part.LineSegment(App.Vector(16, 0, 0), App.Vector(29, 0, 0)), False)
sketch16.addGeometry(Part.LineSegment(App.Vector(29, 0, 0), App.Vector(29, -6, 0)), False)
sketch16.addConstraint(Sketcher.Constraint("Coincident", 0, 2, 1, 1))
sketch16.addConstraint(Sketcher.Constraint("Coincident", 1, 2, 2, 1))
sketch16.addConstraint(Sketcher.Constraint("Coincident", 2, 2, 3, 1))
sketch16.addConstraint(Sketcher.Constraint("Coincident", 3, 2, 4, 1))
sketch16.addConstraint(Sketcher.Constraint("Coincident", 4, 2, 5, 1))
sketch16.addConstraint(Sketcher.Constraint("Coincident", 5, 2, 6, 1))
sketch16.addConstraint(Sketcher.Constraint("Coincident", 6, 2, 7, 1))
sketch16.addConstraint(Sketcher.Constraint("Coincident", 7, 2, 0, 1))
sketch16.addConstraint(Sketcher.Constraint("Horizontal", 0))
sketch16.addConstraint(Sketcher.Constraint("Vertical", 1))
sketch16.addConstraint(Sketcher.Constraint("Horizontal", 2))
sketch16.addConstraint(Sketcher.Constraint("Vertical", 3))
sketch16.addConstraint(Sketcher.Constraint("Horizontal", 4))
sketch16.addConstraint(Sketcher.Constraint("Vertical", 5))
sketch16.addConstraint(Sketcher.Constraint("Horizontal", 6))
sketch16.addConstraint(Sketcher.Constraint("Vertical", 7))
sketch16.addConstraint(Sketcher.Constraint("PointOnObject", 5, 2, -1))
sketch16.addConstraint(Sketcher.Constraint("Horizontal", 0, 2, 3, 2))
sketch16.addConstraint(Sketcher.Constraint("Equal", 0, 4))
sketch16.addConstraint(Sketcher.Constraint("Equal", 6, 1))
sketch16.addConstraint(Sketcher.Constraint("Equal", 4, 5))
sketch16.addConstraint(Sketcher.Constraint("DistanceX", 2, 2, 2, 1, Q("1 in")))
sketch16.addConstraint(Sketcher.Constraint("DistanceX", 6, 1, 6, 2, Q("0.5 in")))
sketch16.addConstraint(Sketcher.Constraint("DistanceX", -1, 1, 0, 2, Q("1.375 in")))
pad16 = body10.newObject("PartDesign::Pad", "Pad015")
pad16.Profile = sketch16
pad16.Length = Q("0.25 in")
body12.AllowCompound = True
doc.recompute()

boolean4 = body12.newObject("PartDesign::Boolean", "Boolean003")
boolean4.Type = "Fuse"
boolean4.addObjects([body13])

# Sketch on XY plane
sketch17 = body12.newObject("Sketcher::SketchObject", "Sketch016")
sketch17.AttachmentSupport = (doc.getObject("XY_Plane011"), [""])
sketch17.MapMode = "FlatFace"
sketch17.addGeometry(Part.LineSegment(App.Vector(35, 13, 0), App.Vector(35, 25, 0)), False)
sketch17.addGeometry(Part.LineSegment(App.Vector(35, 25, 0), App.Vector(10, 25, 0)), False)
sketch17.addGeometry(Part.LineSegment(App.Vector(10, 25, 0), App.Vector(10, 13, 0)), False)
sketch17.addGeometry(Part.LineSegment(App.Vector(10, 13, 0), App.Vector(16, 13, 0)), False)
sketch17.addGeometry(Part.LineSegment(App.Vector(16, 13, 0), App.Vector(16, 19, 0)), False)
sketch17.addGeometry(Part.LineSegment(App.Vector(16, 19, 0), App.Vector(29, 19, 0)), False)
sketch17.addGeometry(Part.LineSegment(App.Vector(29, 19, 0), App.Vector(29, 13, 0)), False)
sketch17.addGeometry(Part.LineSegment(App.Vector(29, 13, 0), App.Vector(35, 13, 0)), False)
sketch17.addConstraint(Sketcher.Constraint("Coincident", 0, 2, 1, 1))
sketch17.addConstraint(Sketcher.Constraint("Coincident", 1, 2, 2, 1))
sketch17.addConstraint(Sketcher.Constraint("Coincident", 2, 2, 3, 1))
sketch17.addConstraint(Sketcher.Constraint("Coincident", 3, 2, 4, 1))
sketch17.addConstraint(Sketcher.Constraint("Coincident", 4, 2, 5, 1))
sketch17.addConstraint(Sketcher.Constraint("Coincident", 5, 2, 6, 1))
sketch17.addConstraint(Sketcher.Constraint("Coincident", 6, 2, 7, 1))
sketch17.addConstraint(Sketcher.Constraint("Coincident", 7, 2, 0, 1))
sketch17.addConstraint(Sketcher.Constraint("Vertical", 0))
sketch17.addConstraint(Sketcher.Constraint("Horizontal", 1))
sketch17.addConstraint(Sketcher.Constraint("Vertical", 2))
sketch17.addConstraint(Sketcher.Constraint("Horizontal", 3))
sketch17.addConstraint(Sketcher.Constraint("Vertical", 4))
sketch17.addConstraint(Sketcher.Constraint("Horizontal", 5))
sketch17.addConstraint(Sketcher.Constraint("Vertical", 6))
sketch17.addConstraint(Sketcher.Constraint("Horizontal", 7))
sketch17.addConstraint(Sketcher.Constraint("Horizontal", 3, 2, 6, 2))
sketch17.addConstraint(Sketcher.Constraint("Equal", 3, 7))
sketch17.addConstraint(Sketcher.Constraint("Equal", 5, 0))
sketch17.addConstraint(Sketcher.Constraint("Equal", 7, 4))
sketch17.addConstraint(Sketcher.Constraint("DistanceX", 1, 2, 1, 1, Q("1 in")))
sketch17.addConstraint(Sketcher.Constraint("DistanceX", 5, 1, 5, 2, Q("0.5 in")))
sketch17.addConstraint(Sketcher.Constraint("DistanceY", -1, 1, 0, 2, Q("1 in")))
sketch17.addConstraint(Sketcher.Constraint("DistanceX", -1, 1, 0, 2, Q("1.375 in")))
pad17 = body12.newObject("PartDesign::Pad", "Pad016")
pad17.Profile = sketch17
pad17.Length = Q("0.25 in")
body7.AllowCompound = True
doc.recompute()

boolean5 = body7.newObject("PartDesign::Boolean", "Boolean004")
boolean5.Type = "Fuse"
boolean5.addObjects([body8])
doc.recompute()

boolean6 = body7.newObject("PartDesign::Boolean", "Boolean005")
boolean6.Type = "Fuse"
boolean6.addObjects([body9])

# Sketch on XY plane
sketch18 = body7.newObject("Sketcher::SketchObject", "Sketch017")
sketch18.AttachmentSupport = (doc.getObject("XY_Plane006"), [""])
sketch18.MapMode = "FlatFace"
sketch18.addGeometry(Part.LineSegment(App.Vector(16, -25, 0), App.Vector(16, -13, 0)), False)
sketch18.addGeometry(Part.LineSegment(App.Vector(16, -13, 0), App.Vector(10, -13, 0)), False)
sketch18.addGeometry(Part.LineSegment(App.Vector(10, -13, 0), App.Vector(10, -25, 0)), False)
sketch18.addGeometry(Part.LineSegment(App.Vector(10, -25, 0), App.Vector(16, -25, 0)), False)
sketch18.addGeometry(Part.LineSegment(App.Vector(29, -25, 0), App.Vector(35, -25, 0)), False)
sketch18.addGeometry(Part.LineSegment(App.Vector(35, -25, 0), App.Vector(35, -13, 0)), False)
sketch18.addGeometry(Part.LineSegment(App.Vector(35, -13, 0), App.Vector(29, -13, 0)), False)
sketch18.addGeometry(Part.LineSegment(App.Vector(29, -13, 0), App.Vector(29, -25, 0)), False)
sketch18.addConstraint(Sketcher.Constraint("Coincident", 0, 2, 1, 1))
sketch18.addConstraint(Sketcher.Constraint("Coincident", 1, 2, 2, 1))
sketch18.addConstraint(Sketcher.Constraint("Coincident", 2, 2, 3, 1))
sketch18.addConstraint(Sketcher.Constraint("Coincident", 3, 2, 0, 1))
sketch18.addConstraint(Sketcher.Constraint("Coincident", 4, 2, 5, 1))
sketch18.addConstraint(Sketcher.Constraint("Coincident", 5, 2, 6, 1))
sketch18.addConstraint(Sketcher.Constraint("Coincident", 6, 2, 7, 1))
sketch18.addConstraint(Sketcher.Constraint("Coincident", 7, 2, 4, 1))
sketch18.addConstraint(Sketcher.Constraint("Vertical", 0))
sketch18.addConstraint(Sketcher.Constraint("Horizontal", 1))
sketch18.addConstraint(Sketcher.Constraint("Vertical", 2))
sketch18.addConstraint(Sketcher.Constraint("Horizontal", 3))
sketch18.addConstraint(Sketcher.Constraint("Horizontal", 4))
sketch18.addConstraint(Sketcher.Constraint("Vertical", 5))
sketch18.addConstraint(Sketcher.Constraint("Horizontal", 6))
sketch18.addConstraint(Sketcher.Constraint("Vertical", 7))
sketch18.addConstraint(Sketcher.Constraint("Horizontal", 3, 2, 4, 2))
sketch18.addConstraint(Sketcher.Constraint("Horizontal", 1, 2, 5, 2))
sketch18.addConstraint(Sketcher.Constraint("Equal", 3, 4))
sketch18.addConstraint(Sketcher.Constraint("DistanceY", 0, 1, 0, 2, Q("0.5 in")))
sketch18.addConstraint(Sketcher.Constraint("DistanceY", 2, 2, -1, 1, Q("1 in")))
sketch18.addConstraint(Sketcher.Constraint("DistanceX", 2, 2, 4, 2, Q("1 in")))
sketch18.addConstraint(Sketcher.Constraint("DistanceX", 1, 2, 1, 1, Q("0.25 in")))
sketch18.addConstraint(Sketcher.Constraint("DistanceX", -1, 1, 0, 2, Q("0.625 in")))
pad18 = body7.newObject("PartDesign::Pad", "Pad017")
pad18.Profile = sketch18
pad18.Length = Q("0.25 in")
body5.AllowCompound = True
doc.recompute()

boolean7 = body5.newObject("PartDesign::Boolean", "Boolean006")
boolean7.Type = "Fuse"
boolean7.addObjects([body6])

# Sketch on XY plane
sketch19 = body5.newObject("Sketcher::SketchObject", "Sketch018")
sketch19.AttachmentSupport = (doc.getObject("XY_Plane004"), [""])
sketch19.MapMode = "FlatFace"
sketch19.addGeometry(Part.LineSegment(App.Vector(-22, -13, 0), App.Vector(-22, -25, 0)), False)
sketch19.addGeometry(Part.LineSegment(App.Vector(-22, -25, 0), App.Vector(-10, -25, 0)), False)
sketch19.addGeometry(Part.LineSegment(App.Vector(-10, -25, 0), App.Vector(-10, -13, 0)), False)
sketch19.addGeometry(Part.LineSegment(App.Vector(-10, -13, 0), App.Vector(-22, -13, 0)), False)
sketch19.addConstraint(Sketcher.Constraint("Coincident", 0, 2, 1, 1))
sketch19.addConstraint(Sketcher.Constraint("Coincident", 1, 2, 2, 1))
sketch19.addConstraint(Sketcher.Constraint("Coincident", 2, 2, 3, 1))
sketch19.addConstraint(Sketcher.Constraint("Coincident", 3, 2, 0, 1))
sketch19.addConstraint(Sketcher.Constraint("Vertical", 0))
sketch19.addConstraint(Sketcher.Constraint("Horizontal", 1))
sketch19.addConstraint(Sketcher.Constraint("Vertical", 2))
sketch19.addConstraint(Sketcher.Constraint("Horizontal", 3))
sketch19.addConstraint(Sketcher.Constraint("Equal", 3, 0))
sketch19.addConstraint(Sketcher.Constraint("DistanceX", 1, 1, 1, 2, Q("0.5 in")))
sketch19.addConstraint(Sketcher.Constraint("DistanceY", 0, 2, -1, 1, Q("1 in")))
sketch19.addConstraint(Sketcher.Constraint("DistanceX", 0, 2, -1, 1, Q("0.875 in")))
pad19 = body5.newObject("PartDesign::Pad", "Pad018")
pad19.Profile = sketch19
pad19.Length = Q("0.25 in")

doc.recompute()
